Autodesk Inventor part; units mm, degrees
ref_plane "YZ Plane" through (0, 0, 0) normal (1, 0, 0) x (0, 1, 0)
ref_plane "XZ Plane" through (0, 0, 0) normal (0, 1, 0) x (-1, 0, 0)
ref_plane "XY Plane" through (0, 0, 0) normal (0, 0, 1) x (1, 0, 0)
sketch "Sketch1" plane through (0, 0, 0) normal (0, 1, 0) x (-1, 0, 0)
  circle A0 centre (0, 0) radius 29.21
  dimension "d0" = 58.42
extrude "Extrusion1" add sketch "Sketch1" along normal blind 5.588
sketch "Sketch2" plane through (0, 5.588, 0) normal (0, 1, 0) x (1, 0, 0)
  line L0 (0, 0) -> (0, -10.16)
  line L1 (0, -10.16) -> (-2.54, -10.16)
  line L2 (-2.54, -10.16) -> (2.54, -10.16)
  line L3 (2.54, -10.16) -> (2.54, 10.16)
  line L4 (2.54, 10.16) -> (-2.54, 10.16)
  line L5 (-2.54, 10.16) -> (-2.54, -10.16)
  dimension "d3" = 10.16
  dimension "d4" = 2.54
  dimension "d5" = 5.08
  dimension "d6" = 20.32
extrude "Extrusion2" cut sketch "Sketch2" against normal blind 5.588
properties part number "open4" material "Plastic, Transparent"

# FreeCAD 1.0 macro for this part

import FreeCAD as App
import Part
import Sketcher
Q = App.Units.Quantity

doc = App.newDocument("Part")
body = doc.addObject("PartDesign::Body", "Body")

# Sketch on XZ plane
sketch1 = body.newObject("Sketcher::SketchObject", "Sketch")
sketch1.AttachmentSupport = (doc.getObject("XZ_Plane"), [""])
sketch1.MapMode = "FlatFace"
sketch1.addGeometry(Part.Circle(App.Vector(0, 0, 0), App.Vector(0, 0, 1), 29.21), False)
sketch1.addConstraint([
    Sketcher.Constraint("Coincident", 0, 3, -1, 1),
    Sketcher.Constraint("Diameter", 0, Q("2.3 in")),
])
pad1 = body.newObject("PartDesign::Pad", "Pad")
pad1.Profile = sketch1
pad1.Length = Q("0.22 in")
pad1.Reversed = True

# Sketch on XZ plane
sketch2 = body.newObject("Sketcher::SketchObject", "Sketch001")
sketch2.AttachmentSupport = (doc.getObject("XZ_Plane"), [""])
sketch2.MapMode = "FlatFace"
sketch2.AttachmentOffset = App.Placement(App.Vector(0, 0, -0.22 * 25.4), App.Rotation())
sketch2.addGeometry([
    Part.LineSegment(App.Vector(-2.54, 10.16, 0), App.Vector(2.54, 10.16, 0)),
    Part.LineSegment(App.Vector(2.54, 10.16, 0), App.Vector(2.54, -10.16, 0)),
    Part.LineSegment(App.Vector(2.54, -10.16, 0), App.Vector(-2.54, -10.16, 0)),
    Part.LineSegment(App.Vector(-2.54, -10.16, 0), App.Vector(-2.54, 10.16, 0)),
], False)
sketch2.addConstraint([
    Sketcher.Constraint("Coincident", 0, 2, 1, 1),
    Sketcher.Constraint("Coincident", 1, 2, 2, 1),
    Sketcher.Constraint("Coincident", 2, 2, 3, 1),
    Sketcher.Constraint("Coincident", 3, 2, 0, 1),
    Sketcher.Constraint("Horizontal", 0),
    Sketcher.Constraint("Vertical", 1),
    Sketcher.Constraint("Horizontal", 2),
    Sketcher.Constraint("Vertical", 3),
    Sketcher.Constraint("Symmetric", 0, 2, 2, 2, -1, 1),
    Sketcher.Constraint("DistanceX", 0, 1, 0, 2, Q("0.2 in")),
    Sketcher.Constraint("DistanceY", 1, 2, 1, 1, Q("0.8 in")),
])
pocket1 = body.newObject("PartDesign::Pocket", "Pocket")
pocket1.Profile = sketch2
pocket1.Length = Q("0.22 in")
pocket1.Reversed = True

doc.recompute()
